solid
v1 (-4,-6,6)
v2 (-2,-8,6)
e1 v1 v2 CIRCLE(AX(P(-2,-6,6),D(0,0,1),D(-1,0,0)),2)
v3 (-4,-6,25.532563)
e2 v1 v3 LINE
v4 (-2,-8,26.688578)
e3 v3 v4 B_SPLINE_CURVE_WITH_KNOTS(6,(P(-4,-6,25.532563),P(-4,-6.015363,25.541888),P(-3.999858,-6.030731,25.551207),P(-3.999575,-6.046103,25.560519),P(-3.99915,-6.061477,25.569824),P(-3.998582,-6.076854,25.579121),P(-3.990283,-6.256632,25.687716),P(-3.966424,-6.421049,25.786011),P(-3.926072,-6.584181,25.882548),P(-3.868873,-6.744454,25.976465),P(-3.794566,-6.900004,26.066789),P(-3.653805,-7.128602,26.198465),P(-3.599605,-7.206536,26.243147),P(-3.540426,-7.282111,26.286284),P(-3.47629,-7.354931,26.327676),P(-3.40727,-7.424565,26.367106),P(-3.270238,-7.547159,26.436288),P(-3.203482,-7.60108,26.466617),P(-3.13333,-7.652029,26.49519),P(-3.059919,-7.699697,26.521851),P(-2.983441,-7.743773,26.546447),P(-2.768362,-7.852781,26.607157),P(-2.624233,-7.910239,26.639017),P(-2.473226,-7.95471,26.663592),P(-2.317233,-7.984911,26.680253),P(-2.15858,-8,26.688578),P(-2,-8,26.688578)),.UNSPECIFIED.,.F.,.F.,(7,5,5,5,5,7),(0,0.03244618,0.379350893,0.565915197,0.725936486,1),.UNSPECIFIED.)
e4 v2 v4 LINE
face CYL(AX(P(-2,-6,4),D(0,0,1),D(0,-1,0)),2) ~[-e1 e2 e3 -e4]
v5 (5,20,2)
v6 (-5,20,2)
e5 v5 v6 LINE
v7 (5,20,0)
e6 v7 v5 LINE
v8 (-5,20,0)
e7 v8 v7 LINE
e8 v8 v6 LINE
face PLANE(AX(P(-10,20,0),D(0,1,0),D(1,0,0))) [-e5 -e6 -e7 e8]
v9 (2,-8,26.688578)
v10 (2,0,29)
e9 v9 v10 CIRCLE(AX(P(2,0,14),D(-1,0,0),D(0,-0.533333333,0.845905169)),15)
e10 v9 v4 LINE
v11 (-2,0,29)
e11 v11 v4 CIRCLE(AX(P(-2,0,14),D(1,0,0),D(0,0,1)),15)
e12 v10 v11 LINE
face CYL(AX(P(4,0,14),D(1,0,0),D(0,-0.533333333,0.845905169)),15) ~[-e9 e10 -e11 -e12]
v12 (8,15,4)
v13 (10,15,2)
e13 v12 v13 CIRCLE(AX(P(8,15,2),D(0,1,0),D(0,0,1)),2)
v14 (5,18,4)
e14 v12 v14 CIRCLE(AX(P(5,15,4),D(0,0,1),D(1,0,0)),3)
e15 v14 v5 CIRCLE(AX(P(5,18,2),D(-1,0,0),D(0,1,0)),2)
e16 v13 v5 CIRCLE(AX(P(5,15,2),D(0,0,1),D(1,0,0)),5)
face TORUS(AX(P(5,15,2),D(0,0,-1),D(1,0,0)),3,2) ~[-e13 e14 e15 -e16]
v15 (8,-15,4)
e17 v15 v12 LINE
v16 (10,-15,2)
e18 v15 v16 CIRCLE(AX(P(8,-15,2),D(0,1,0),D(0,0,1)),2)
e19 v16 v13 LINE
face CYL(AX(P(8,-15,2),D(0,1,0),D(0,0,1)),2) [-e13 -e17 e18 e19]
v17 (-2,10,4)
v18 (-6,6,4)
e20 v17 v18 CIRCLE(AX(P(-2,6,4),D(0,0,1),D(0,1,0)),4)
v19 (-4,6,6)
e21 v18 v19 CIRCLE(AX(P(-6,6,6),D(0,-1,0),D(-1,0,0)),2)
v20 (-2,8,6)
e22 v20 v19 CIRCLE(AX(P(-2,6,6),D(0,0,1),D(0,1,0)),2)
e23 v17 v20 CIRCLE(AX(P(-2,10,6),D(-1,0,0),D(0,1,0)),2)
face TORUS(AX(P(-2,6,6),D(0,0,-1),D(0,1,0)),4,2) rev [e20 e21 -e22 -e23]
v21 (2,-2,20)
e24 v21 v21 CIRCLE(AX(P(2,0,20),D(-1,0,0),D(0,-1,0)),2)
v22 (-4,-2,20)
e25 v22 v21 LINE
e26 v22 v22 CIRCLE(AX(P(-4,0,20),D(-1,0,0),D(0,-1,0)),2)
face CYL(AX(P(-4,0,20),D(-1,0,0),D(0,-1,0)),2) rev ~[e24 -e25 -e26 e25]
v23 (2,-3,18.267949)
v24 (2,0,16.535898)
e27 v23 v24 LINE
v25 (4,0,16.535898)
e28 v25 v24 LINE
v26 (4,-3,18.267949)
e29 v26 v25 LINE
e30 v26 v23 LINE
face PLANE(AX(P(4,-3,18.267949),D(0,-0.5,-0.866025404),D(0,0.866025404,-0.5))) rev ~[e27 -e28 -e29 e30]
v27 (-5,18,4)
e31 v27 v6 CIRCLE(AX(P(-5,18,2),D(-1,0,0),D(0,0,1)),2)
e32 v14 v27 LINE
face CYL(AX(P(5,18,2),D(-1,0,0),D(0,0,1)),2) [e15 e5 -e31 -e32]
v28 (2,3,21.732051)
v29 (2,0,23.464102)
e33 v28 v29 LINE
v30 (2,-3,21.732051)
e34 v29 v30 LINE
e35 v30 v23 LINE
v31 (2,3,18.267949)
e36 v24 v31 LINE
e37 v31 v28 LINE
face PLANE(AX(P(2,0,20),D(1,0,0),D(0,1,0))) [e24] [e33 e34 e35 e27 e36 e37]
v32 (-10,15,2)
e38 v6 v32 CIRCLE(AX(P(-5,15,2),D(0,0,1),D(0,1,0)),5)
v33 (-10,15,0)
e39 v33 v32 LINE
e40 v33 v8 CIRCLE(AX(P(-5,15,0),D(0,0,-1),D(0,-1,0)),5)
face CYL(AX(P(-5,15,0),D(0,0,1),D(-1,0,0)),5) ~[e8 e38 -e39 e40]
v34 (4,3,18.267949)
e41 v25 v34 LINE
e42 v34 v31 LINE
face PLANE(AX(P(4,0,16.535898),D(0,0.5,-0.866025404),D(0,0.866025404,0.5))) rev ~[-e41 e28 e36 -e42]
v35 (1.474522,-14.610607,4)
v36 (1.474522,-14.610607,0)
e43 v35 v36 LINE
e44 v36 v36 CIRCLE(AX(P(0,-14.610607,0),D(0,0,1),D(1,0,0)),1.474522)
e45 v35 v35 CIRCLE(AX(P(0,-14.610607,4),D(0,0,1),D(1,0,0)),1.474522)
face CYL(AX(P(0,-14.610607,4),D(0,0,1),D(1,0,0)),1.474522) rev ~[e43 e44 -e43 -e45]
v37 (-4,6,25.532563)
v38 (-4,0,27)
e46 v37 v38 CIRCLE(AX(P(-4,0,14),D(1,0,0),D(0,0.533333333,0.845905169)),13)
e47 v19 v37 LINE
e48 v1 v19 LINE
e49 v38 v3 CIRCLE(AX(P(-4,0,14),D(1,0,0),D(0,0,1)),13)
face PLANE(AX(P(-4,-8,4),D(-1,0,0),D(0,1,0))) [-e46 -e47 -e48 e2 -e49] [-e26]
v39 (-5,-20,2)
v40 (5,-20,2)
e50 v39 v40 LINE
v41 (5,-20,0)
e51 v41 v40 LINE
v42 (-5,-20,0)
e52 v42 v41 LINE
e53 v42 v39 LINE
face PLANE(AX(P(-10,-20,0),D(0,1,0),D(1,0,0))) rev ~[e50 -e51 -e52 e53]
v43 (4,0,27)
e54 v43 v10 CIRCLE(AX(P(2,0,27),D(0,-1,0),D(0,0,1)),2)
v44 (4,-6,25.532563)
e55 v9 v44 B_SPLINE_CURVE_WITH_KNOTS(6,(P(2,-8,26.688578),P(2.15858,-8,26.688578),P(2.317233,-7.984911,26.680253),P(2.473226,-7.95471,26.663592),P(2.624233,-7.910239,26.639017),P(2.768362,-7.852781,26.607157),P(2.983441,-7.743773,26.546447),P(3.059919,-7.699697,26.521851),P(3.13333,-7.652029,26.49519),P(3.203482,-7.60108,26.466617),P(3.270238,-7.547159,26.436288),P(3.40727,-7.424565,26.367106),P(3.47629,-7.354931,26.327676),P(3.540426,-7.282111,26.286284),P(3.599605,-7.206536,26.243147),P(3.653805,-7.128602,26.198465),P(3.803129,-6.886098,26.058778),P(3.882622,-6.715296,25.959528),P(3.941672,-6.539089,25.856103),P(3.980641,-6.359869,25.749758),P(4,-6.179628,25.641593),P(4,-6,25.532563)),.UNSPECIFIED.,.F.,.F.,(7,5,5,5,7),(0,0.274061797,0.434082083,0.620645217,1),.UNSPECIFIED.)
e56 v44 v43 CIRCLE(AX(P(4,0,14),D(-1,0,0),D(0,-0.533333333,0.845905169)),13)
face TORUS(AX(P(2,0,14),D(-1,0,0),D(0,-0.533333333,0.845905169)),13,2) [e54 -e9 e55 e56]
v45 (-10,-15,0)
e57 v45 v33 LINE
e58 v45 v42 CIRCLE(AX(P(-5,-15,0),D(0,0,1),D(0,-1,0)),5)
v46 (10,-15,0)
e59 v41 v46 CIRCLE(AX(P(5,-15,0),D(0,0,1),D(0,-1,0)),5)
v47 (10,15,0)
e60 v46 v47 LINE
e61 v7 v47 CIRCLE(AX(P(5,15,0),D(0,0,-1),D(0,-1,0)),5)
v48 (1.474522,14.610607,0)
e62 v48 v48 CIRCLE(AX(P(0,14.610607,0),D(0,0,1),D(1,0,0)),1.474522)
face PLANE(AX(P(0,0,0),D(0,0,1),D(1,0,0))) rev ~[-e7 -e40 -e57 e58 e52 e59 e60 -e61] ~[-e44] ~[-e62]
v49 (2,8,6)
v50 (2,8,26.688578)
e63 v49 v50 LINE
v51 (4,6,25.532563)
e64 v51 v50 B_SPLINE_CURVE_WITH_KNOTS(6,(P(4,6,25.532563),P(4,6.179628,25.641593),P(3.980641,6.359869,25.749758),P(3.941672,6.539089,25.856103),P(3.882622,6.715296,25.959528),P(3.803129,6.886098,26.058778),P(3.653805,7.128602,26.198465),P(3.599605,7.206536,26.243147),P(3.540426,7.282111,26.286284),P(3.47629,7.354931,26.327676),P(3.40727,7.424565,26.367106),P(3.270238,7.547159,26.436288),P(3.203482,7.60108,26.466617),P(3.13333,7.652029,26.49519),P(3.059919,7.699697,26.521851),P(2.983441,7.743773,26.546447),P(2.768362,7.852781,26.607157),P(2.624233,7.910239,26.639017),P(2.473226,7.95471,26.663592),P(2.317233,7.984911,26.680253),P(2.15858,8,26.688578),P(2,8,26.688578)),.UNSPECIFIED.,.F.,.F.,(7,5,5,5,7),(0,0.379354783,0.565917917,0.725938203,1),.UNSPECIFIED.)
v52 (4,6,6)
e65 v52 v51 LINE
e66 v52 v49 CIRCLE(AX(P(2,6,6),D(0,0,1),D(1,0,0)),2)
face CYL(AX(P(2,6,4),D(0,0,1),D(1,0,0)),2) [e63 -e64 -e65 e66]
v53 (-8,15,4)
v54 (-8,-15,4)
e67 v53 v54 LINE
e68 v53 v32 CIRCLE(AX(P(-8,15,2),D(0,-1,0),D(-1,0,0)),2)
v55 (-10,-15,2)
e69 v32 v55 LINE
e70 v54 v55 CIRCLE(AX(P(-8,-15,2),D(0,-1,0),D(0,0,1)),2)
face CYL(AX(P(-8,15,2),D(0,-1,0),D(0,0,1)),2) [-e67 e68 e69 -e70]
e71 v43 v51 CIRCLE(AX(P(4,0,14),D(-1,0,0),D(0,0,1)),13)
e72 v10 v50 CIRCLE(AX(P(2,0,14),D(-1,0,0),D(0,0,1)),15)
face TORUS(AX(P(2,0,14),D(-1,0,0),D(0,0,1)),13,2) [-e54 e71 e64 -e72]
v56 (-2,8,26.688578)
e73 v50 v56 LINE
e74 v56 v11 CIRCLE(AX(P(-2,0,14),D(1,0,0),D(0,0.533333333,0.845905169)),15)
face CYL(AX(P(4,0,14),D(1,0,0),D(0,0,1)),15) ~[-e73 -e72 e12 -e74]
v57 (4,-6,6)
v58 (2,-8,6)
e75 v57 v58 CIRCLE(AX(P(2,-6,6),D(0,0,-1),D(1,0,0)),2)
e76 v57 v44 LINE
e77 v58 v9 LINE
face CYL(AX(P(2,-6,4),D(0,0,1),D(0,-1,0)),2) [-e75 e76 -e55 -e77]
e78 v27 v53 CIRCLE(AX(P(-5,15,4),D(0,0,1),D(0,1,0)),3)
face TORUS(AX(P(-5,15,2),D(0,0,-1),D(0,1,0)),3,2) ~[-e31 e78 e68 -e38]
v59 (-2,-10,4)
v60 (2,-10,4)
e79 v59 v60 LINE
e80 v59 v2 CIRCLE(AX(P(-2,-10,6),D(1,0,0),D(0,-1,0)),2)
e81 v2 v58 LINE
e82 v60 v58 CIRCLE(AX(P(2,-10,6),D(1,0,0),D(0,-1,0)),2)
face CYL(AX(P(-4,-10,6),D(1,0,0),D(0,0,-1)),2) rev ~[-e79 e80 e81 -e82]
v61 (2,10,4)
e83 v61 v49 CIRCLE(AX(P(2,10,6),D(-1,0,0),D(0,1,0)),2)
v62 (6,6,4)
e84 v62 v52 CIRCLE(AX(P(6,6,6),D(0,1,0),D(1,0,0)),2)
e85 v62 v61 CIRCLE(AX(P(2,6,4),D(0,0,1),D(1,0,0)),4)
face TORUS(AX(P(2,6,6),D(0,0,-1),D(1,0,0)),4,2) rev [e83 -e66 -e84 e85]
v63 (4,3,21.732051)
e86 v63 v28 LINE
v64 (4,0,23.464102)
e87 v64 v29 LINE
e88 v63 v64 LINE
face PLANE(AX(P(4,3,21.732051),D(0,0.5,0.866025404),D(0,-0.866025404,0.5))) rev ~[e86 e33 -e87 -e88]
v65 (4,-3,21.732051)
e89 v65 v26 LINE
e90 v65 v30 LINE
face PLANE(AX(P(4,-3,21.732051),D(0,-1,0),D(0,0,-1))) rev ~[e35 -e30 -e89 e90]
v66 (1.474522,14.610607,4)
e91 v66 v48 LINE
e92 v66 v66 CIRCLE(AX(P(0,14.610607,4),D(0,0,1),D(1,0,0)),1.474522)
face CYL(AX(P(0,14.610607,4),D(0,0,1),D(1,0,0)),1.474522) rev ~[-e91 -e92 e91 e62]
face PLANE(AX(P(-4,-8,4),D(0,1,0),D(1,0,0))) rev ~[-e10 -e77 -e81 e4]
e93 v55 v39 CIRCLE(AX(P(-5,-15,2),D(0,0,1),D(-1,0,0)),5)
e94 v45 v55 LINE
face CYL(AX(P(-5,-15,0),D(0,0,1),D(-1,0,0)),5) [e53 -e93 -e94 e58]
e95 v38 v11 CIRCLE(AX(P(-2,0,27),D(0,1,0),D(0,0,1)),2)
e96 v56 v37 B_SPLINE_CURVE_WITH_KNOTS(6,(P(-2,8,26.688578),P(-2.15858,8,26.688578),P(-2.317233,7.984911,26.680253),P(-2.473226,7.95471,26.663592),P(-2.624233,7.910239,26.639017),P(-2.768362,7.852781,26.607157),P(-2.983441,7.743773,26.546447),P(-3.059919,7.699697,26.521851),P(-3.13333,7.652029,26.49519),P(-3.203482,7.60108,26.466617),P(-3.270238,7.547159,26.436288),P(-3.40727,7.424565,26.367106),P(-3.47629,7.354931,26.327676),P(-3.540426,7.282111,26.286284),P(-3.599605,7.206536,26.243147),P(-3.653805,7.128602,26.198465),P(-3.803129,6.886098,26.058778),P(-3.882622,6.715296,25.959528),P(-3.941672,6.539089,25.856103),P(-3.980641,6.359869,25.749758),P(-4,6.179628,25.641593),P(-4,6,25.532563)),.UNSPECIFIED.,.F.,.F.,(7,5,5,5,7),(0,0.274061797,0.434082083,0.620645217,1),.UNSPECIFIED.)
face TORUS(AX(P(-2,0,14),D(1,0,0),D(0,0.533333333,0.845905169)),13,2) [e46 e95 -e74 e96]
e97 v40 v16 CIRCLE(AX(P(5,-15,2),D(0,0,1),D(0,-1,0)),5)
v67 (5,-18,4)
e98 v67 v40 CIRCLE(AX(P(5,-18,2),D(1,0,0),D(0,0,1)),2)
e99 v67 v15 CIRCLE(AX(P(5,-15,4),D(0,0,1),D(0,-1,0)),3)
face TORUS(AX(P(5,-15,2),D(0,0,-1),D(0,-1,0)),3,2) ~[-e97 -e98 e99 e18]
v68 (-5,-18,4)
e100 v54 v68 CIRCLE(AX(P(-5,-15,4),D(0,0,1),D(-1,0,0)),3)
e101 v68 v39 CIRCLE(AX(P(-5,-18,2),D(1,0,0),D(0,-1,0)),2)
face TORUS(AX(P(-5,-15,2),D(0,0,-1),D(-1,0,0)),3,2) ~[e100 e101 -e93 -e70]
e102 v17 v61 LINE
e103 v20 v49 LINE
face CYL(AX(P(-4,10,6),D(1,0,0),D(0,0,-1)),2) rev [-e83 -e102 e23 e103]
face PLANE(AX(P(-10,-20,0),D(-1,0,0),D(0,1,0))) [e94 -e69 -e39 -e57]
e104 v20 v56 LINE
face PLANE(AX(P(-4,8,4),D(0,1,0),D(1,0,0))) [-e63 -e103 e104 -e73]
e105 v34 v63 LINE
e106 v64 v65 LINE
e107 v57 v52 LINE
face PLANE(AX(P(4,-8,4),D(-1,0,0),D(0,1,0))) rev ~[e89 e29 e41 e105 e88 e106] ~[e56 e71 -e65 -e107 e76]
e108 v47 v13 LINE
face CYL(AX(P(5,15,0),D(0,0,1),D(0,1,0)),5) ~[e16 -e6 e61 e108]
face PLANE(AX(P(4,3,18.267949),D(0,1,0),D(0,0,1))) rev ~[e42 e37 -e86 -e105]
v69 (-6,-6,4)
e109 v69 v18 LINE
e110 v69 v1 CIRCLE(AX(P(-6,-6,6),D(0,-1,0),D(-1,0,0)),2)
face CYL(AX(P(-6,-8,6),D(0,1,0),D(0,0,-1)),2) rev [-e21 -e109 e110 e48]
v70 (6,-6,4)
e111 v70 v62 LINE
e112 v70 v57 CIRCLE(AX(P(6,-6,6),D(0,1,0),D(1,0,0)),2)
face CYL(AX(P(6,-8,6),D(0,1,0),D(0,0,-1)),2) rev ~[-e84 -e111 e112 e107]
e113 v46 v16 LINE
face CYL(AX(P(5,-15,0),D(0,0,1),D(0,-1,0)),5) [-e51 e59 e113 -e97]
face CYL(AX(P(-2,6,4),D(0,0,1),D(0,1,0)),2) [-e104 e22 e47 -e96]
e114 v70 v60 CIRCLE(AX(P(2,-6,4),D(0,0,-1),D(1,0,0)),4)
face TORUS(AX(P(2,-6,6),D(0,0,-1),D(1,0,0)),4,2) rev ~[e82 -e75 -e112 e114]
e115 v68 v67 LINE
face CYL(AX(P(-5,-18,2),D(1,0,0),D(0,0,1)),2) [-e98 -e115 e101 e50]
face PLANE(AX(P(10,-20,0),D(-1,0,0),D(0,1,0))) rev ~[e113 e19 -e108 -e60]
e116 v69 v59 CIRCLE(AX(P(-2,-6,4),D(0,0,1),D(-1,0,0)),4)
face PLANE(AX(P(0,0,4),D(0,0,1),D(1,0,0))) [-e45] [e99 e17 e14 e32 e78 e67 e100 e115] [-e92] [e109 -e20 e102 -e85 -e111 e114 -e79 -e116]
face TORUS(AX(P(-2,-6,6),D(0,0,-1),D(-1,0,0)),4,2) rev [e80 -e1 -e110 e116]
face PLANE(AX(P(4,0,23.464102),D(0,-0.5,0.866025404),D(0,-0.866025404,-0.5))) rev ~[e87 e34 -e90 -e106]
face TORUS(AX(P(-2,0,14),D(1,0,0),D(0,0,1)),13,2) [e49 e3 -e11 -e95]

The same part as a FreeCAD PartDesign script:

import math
import FreeCAD as App
import Part
import Sketcher
Q = App.Units.Quantity


def edges_at(feature, points):
    """Names of the edges that pass closest to the given points."""
    edges = feature.Shape.Edges
    near = lambda p: min(range(len(edges)), key=lambda i: edges[i].distToShape(Part.Vertex(*p))[0])
    return sorted({f"Edge{near(p) + 1}" for p in points})

doc = App.newDocument("Part")
body = doc.addObject("PartDesign::Body", "Body")

# Sketch on XY plane
sketch1 = body.newObject("Sketcher::SketchObject", "Sketch")
sketch1.AttachmentSupport = (doc.getObject("XY_Plane"), [""])
sketch1.MapMode = "FlatFace"
sketch1.addGeometry(Part.LineSegment(App.Vector(-10, 20, 0), App.Vector(-10, -20, 0)), False)
sketch1.addGeometry(Part.LineSegment(App.Vector(-10, -20, 0), App.Vector(10, -20, 0)), False)
sketch1.addGeometry(Part.LineSegment(App.Vector(10, -20, 0), App.Vector(10, 20, 0)), False)
sketch1.addGeometry(Part.LineSegment(App.Vector(10, 20, 0), App.Vector(-10, 20, 0)), False)
sketch1.addConstraint(Sketcher.Constraint("Coincident", 0, 2, 1, 1))
sketch1.addConstraint(Sketcher.Constraint("Coincident", 1, 2, 2, 1))
sketch1.addConstraint(Sketcher.Constraint("Coincident", 2, 2, 3, 1))
sketch1.addConstraint(Sketcher.Constraint("Coincident", 3, 2, 0, 1))
sketch1.addConstraint(Sketcher.Constraint("Vertical", 0))
sketch1.addConstraint(Sketcher.Constraint("Horizontal", 1))
sketch1.addConstraint(Sketcher.Constraint("Vertical", 2))
sketch1.addConstraint(Sketcher.Constraint("Horizontal", 3))
sketch1.addConstraint(Sketcher.Constraint("Symmetric", 0, 2, 2, 2, -1, 1))
sketch1.addConstraint(Sketcher.Constraint("DistanceX", 1, 1, 1, 2, 20.0))
sketch1.addConstraint(Sketcher.Constraint("DistanceY", 0, 2, 0, 1, 40.0))
pad1 = body.newObject("PartDesign::Pad", "Pad")
pad1.Profile = sketch1
pad1.Length = 4

# Sketch on XY plane
sketch2 = body.newObject("Sketcher::SketchObject", "Sketch001")
sketch2.AttachmentSupport = (doc.getObject("XY_Plane"), [""])
sketch2.MapMode = "FlatFace"
sketch2.AttachmentOffset = App.Placement(App.Vector(0, 0, 4), App.Rotation())
sketch2.addGeometry(Part.LineSegment(App.Vector(-4, 8, 0), App.Vector(-4, -8, 0)), False)
sketch2.addGeometry(Part.LineSegment(App.Vector(-4, -8, 0), App.Vector(4, -8, 0)), False)
sketch2.addGeometry(Part.LineSegment(App.Vector(4, -8, 0), App.Vector(4, 8, 0)), False)
sketch2.addGeometry(Part.LineSegment(App.Vector(4, 8, 0), App.Vector(-4, 8, 0)), False)
sketch2.addConstraint(Sketcher.Constraint("Coincident", 0, 2, 1, 1))
sketch2.addConstraint(Sketcher.Constraint("Coincident", 1, 2, 2, 1))
sketch2.addConstraint(Sketcher.Constraint("Coincident", 2, 2, 3, 1))
sketch2.addConstraint(Sketcher.Constraint("Coincident", 3, 2, 0, 1))
sketch2.addConstraint(Sketcher.Constraint("Vertical", 0))
sketch2.addConstraint(Sketcher.Constraint("Horizontal", 1))
sketch2.addConstraint(Sketcher.Constraint("Vertical", 2))
sketch2.addConstraint(Sketcher.Constraint("Horizontal", 3))
sketch2.addConstraint(Sketcher.Constraint("Symmetric", 0, 2, 2, 2, -1, 1))
sketch2.addConstraint(Sketcher.Constraint("DistanceX", 1, 1, 1, 2, 8.0))
sketch2.addConstraint(Sketcher.Constraint("DistanceY", 0, 2, 0, 1, 16.0))
pad2 = body.newObject("PartDesign::Pad", "Pad001")
pad2.Profile = sketch2
pad2.Length = 25

# Sketch on YZ plane
sketch3 = body.newObject("Sketcher::SketchObject", "Sketch002")
sketch3.AttachmentSupport = (doc.getObject("YZ_Plane"), [""])
sketch3.MapMode = "FlatFace"
sketch3.AttachmentOffset = App.Placement(App.Vector(0, 0, 4), App.Rotation())
sketch3.addGeometry(Part.LineSegment(App.Vector(-8, 29, 0), App.Vector(-8, 26.688578, 0)), False)
sketch3.addGeometry(Part.ArcOfCircle(Part.Circle(App.Vector(0, 14, 0), App.Vector(0, 0, 1), 15), math.radians(90), math.radians(122.230953)), False)
sketch3.addGeometry(Part.LineSegment(App.Vector(0, 29, 0), App.Vector(-8, 29, 0)), False)
sketch3.addGeometry(Part.ArcOfCircle(Part.Circle(App.Vector(0, 14, 0), App.Vector(0, 0, 1), 15), math.radians(57.769047), math.radians(90)), False)
sketch3.addGeometry(Part.LineSegment(App.Vector(8, 26.688578, 0), App.Vector(8, 29, 0)), False)
sketch3.addGeometry(Part.LineSegment(App.Vector(8, 29, 0), App.Vector(0, 29, 0)), False)
sketch3.addConstraint(Sketcher.Constraint("Coincident", 0, 2, 1, 2))
sketch3.addConstraint(Sketcher.Constraint("Tangent", 1, 1, 2, 1))
sketch3.addConstraint(Sketcher.Constraint("Coincident", 2, 2, 0, 1))
sketch3.addConstraint(Sketcher.Constraint("Coincident", 3, 1, 4, 1))
sketch3.addConstraint(Sketcher.Constraint("Coincident", 4, 2, 5, 1))
sketch3.addConstraint(Sketcher.Constraint("Tangent", 5, 2, 3, 2))
sketch3.addConstraint(Sketcher.Constraint("Vertical", 0))
sketch3.addConstraint(Sketcher.Constraint("Horizontal", 2))
sketch3.addConstraint(Sketcher.Constraint("Vertical", 4))
sketch3.addConstraint(Sketcher.Constraint("Horizontal", 5))
sketch3.addConstraint(Sketcher.Constraint("Coincident", 3, 3, 1, 3))
sketch3.addConstraint(Sketcher.Constraint("Equal", 1, 3))
sketch3.addConstraint(Sketcher.Constraint("Symmetric", 0, 2, 3, 1, -2))
sketch3.addConstraint(Sketcher.Constraint("Radius", 1, 15.0))
sketch3.addConstraint(Sketcher.Constraint("DistanceX", 2, 2, 2, 1, 8.0))
sketch3.addConstraint(Sketcher.Constraint("DistanceY", -1, 1, 1, 3, 14.0))
pocket1 = body.newObject("PartDesign::Pocket", "Pocket")
pocket1.Profile = sketch3
pocket1.Length = 25
doc.recompute()

fillet = body.newObject("PartDesign::Fillet", "Fillet")
fillet.Base = (pocket1, edges_at(pocket1, [
    (-10, 20, 2),
    (-10, -20, 2),
    (10, -20, 2),
    (10, 20, 2),
]))
fillet.Radius = 5
doc.recompute()

fillet2 = body.newObject("PartDesign::Fillet", "Fillet001")
fillet2.Base = (fillet, edges_at(fillet, [
    (10, 0, 4),
    (8.536, -18.536, 4),
    (8.536, 18.536, 4),
    (0, -20, 4),
    (0, 20, 4),
    (-8.536, -18.536, 4),
    (-8.536, 18.536, 4),
    (-10, 0, 4),
    (4, 0, 4),
    (0, 8, 4),
    (-4, 0, 4),
    (0, -8, 4),
    (4, -8, 15.344),
    (4, 4.164, 28.411),
    (4, 8, 15.344),
    (-4, 8, 15.344),
    (-4, 4.164, 28.411),
    (-4, -8, 15.344),
]))
fillet2.Radius = 2

# Sketch on YZ plane
sketch4 = body.newObject("Sketcher::SketchObject", "Sketch003")
sketch4.AttachmentSupport = (doc.getObject("YZ_Plane"), [""])
sketch4.MapMode = "FlatFace"
sketch4.AttachmentOffset = App.Placement(App.Vector(0, 0, -4), App.Rotation())
sketch4.addGeometry(Part.Circle(App.Vector(0, 20, 0), App.Vector(0, 0, 1), 2), False)
sketch4.addConstraint(Sketcher.Constraint("PointOnObject", 0, 3, -2))
sketch4.addConstraint(Sketcher.Constraint("Diameter", 0, 4.0))
sketch4.addConstraint(Sketcher.Constraint("DistanceY", -1, 1, 0, 3, 20.0))
pocket2 = body.newObject("PartDesign::Pocket", "Pocket001")
pocket2.Profile = sketch4
pocket2.Length = 25
pocket2.Reversed = True

# Sketch on XY plane
sketch5 = body.newObject("Sketcher::SketchObject", "Sketch004")
sketch5.AttachmentSupport = (doc.getObject("XY_Plane"), [""])
sketch5.MapMode = "FlatFace"
sketch5.AttachmentOffset = App.Placement(App.Vector(0, 0, 4), App.Rotation())
sketch5.addGeometry(Part.Circle(App.Vector(0, 14.610607, 0), App.Vector(0, 0, 1), 1.474522), False)
sketch5.addGeometry(Part.Circle(App.Vector(0, -14.610607, 0), App.Vector(0, 0, 1), 1.474522), False)
sketch5.addConstraint(Sketcher.Constraint("Equal", 0, 1))
sketch5.addConstraint(Sketcher.Constraint("Symmetric", 0, 3, 1, 3, -1, 1))
sketch5.addConstraint(Sketcher.Constraint("PointOnObject", 0, 3, -2))
sketch5.addConstraint(Sketcher.Constraint("Diameter", 0, 2.949043))
sketch5.addConstraint(Sketcher.Constraint("DistanceY", -1, 1, 0, 3, 14.610607))
pocket3 = body.newObject("PartDesign::Pocket", "Pocket002")
pocket3.Profile = sketch5
pocket3.Length = 5

# Sketch on YZ plane
sketch6 = body.newObject("Sketcher::SketchObject", "Sketch005")
sketch6.AttachmentSupport = (doc.getObject("YZ_Plane"), [""])
sketch6.MapMode = "FlatFace"
sketch6.AttachmentOffset = App.Placement(App.Vector(0, 0, 4), App.Rotation())
sketch6.addGeometry(Part.LineSegment(App.Vector(3, 21.732051, 0), App.Vector(0, 23.464102, 0)), False)
sketch6.addGeometry(Part.LineSegment(App.Vector(0, 23.464102, 0), App.Vector(-3, 21.732051, 0)), False)
sketch6.addGeometry(Part.LineSegment(App.Vector(-3, 21.732051, 0), App.Vector(-3, 18.267949, 0)), False)
sketch6.addGeometry(Part.LineSegment(App.Vector(-3, 18.267949, 0), App.Vector(0, 16.535898, 0)), False)
sketch6.addGeometry(Part.LineSegment(App.Vector(0, 16.535898, 0), App.Vector(3, 18.267949, 0)), False)
sketch6.addGeometry(Part.LineSegment(App.Vector(3, 18.267949, 0), App.Vector(3, 21.732051, 0)), False)
sketch6.addConstraint(Sketcher.Constraint("Coincident", 0, 2, 1, 1))
sketch6.addConstraint(Sketcher.Constraint("Coincident", 1, 2, 2, 1))
sketch6.addConstraint(Sketcher.Constraint("Coincident", 2, 2, 3, 1))
sketch6.addConstraint(Sketcher.Constraint("Coincident", 3, 2, 4, 1))
sketch6.addConstraint(Sketcher.Constraint("Coincident", 4, 2, 5, 1))
sketch6.addConstraint(Sketcher.Constraint("Coincident", 5, 2, 0, 1))
sketch6.addConstraint(Sketcher.Constraint("Vertical", 2))
sketch6.addConstraint(Sketcher.Constraint("Vertical", 5))
sketch6.addConstraint(Sketcher.Constraint("Symmetric", 2, 2, 4, 2, -2))
sketch6.addConstraint(Sketcher.Constraint("PointOnObject", 0, 2, -2))
sketch6.addConstraint(Sketcher.Constraint("PointOnObject", 3, 2, -2))
sketch6.addConstraint(Sketcher.Constraint("Parallel", 0, 3))
sketch6.addConstraint(Sketcher.Constraint("Parallel", 1, 4))
sketch6.addConstraint(Sketcher.Constraint("Angle", 0, Q("150 deg")))
sketch6.addConstraint(Sketcher.Constraint("DistanceX", 1, 2, -1, 1, 3.0))
sketch6.addConstraint(Sketcher.Constraint("DistanceY", 2, 2, 2, 1, 3.464102))
sketch6.addConstraint(Sketcher.Constraint("DistanceY", -1, 1, 0, 2, 23.464102))
pocket4 = body.newObject("PartDesign::Pocket", "Pocket003")
pocket4.Profile = sketch6
pocket4.Length = 2

doc.recompute()
